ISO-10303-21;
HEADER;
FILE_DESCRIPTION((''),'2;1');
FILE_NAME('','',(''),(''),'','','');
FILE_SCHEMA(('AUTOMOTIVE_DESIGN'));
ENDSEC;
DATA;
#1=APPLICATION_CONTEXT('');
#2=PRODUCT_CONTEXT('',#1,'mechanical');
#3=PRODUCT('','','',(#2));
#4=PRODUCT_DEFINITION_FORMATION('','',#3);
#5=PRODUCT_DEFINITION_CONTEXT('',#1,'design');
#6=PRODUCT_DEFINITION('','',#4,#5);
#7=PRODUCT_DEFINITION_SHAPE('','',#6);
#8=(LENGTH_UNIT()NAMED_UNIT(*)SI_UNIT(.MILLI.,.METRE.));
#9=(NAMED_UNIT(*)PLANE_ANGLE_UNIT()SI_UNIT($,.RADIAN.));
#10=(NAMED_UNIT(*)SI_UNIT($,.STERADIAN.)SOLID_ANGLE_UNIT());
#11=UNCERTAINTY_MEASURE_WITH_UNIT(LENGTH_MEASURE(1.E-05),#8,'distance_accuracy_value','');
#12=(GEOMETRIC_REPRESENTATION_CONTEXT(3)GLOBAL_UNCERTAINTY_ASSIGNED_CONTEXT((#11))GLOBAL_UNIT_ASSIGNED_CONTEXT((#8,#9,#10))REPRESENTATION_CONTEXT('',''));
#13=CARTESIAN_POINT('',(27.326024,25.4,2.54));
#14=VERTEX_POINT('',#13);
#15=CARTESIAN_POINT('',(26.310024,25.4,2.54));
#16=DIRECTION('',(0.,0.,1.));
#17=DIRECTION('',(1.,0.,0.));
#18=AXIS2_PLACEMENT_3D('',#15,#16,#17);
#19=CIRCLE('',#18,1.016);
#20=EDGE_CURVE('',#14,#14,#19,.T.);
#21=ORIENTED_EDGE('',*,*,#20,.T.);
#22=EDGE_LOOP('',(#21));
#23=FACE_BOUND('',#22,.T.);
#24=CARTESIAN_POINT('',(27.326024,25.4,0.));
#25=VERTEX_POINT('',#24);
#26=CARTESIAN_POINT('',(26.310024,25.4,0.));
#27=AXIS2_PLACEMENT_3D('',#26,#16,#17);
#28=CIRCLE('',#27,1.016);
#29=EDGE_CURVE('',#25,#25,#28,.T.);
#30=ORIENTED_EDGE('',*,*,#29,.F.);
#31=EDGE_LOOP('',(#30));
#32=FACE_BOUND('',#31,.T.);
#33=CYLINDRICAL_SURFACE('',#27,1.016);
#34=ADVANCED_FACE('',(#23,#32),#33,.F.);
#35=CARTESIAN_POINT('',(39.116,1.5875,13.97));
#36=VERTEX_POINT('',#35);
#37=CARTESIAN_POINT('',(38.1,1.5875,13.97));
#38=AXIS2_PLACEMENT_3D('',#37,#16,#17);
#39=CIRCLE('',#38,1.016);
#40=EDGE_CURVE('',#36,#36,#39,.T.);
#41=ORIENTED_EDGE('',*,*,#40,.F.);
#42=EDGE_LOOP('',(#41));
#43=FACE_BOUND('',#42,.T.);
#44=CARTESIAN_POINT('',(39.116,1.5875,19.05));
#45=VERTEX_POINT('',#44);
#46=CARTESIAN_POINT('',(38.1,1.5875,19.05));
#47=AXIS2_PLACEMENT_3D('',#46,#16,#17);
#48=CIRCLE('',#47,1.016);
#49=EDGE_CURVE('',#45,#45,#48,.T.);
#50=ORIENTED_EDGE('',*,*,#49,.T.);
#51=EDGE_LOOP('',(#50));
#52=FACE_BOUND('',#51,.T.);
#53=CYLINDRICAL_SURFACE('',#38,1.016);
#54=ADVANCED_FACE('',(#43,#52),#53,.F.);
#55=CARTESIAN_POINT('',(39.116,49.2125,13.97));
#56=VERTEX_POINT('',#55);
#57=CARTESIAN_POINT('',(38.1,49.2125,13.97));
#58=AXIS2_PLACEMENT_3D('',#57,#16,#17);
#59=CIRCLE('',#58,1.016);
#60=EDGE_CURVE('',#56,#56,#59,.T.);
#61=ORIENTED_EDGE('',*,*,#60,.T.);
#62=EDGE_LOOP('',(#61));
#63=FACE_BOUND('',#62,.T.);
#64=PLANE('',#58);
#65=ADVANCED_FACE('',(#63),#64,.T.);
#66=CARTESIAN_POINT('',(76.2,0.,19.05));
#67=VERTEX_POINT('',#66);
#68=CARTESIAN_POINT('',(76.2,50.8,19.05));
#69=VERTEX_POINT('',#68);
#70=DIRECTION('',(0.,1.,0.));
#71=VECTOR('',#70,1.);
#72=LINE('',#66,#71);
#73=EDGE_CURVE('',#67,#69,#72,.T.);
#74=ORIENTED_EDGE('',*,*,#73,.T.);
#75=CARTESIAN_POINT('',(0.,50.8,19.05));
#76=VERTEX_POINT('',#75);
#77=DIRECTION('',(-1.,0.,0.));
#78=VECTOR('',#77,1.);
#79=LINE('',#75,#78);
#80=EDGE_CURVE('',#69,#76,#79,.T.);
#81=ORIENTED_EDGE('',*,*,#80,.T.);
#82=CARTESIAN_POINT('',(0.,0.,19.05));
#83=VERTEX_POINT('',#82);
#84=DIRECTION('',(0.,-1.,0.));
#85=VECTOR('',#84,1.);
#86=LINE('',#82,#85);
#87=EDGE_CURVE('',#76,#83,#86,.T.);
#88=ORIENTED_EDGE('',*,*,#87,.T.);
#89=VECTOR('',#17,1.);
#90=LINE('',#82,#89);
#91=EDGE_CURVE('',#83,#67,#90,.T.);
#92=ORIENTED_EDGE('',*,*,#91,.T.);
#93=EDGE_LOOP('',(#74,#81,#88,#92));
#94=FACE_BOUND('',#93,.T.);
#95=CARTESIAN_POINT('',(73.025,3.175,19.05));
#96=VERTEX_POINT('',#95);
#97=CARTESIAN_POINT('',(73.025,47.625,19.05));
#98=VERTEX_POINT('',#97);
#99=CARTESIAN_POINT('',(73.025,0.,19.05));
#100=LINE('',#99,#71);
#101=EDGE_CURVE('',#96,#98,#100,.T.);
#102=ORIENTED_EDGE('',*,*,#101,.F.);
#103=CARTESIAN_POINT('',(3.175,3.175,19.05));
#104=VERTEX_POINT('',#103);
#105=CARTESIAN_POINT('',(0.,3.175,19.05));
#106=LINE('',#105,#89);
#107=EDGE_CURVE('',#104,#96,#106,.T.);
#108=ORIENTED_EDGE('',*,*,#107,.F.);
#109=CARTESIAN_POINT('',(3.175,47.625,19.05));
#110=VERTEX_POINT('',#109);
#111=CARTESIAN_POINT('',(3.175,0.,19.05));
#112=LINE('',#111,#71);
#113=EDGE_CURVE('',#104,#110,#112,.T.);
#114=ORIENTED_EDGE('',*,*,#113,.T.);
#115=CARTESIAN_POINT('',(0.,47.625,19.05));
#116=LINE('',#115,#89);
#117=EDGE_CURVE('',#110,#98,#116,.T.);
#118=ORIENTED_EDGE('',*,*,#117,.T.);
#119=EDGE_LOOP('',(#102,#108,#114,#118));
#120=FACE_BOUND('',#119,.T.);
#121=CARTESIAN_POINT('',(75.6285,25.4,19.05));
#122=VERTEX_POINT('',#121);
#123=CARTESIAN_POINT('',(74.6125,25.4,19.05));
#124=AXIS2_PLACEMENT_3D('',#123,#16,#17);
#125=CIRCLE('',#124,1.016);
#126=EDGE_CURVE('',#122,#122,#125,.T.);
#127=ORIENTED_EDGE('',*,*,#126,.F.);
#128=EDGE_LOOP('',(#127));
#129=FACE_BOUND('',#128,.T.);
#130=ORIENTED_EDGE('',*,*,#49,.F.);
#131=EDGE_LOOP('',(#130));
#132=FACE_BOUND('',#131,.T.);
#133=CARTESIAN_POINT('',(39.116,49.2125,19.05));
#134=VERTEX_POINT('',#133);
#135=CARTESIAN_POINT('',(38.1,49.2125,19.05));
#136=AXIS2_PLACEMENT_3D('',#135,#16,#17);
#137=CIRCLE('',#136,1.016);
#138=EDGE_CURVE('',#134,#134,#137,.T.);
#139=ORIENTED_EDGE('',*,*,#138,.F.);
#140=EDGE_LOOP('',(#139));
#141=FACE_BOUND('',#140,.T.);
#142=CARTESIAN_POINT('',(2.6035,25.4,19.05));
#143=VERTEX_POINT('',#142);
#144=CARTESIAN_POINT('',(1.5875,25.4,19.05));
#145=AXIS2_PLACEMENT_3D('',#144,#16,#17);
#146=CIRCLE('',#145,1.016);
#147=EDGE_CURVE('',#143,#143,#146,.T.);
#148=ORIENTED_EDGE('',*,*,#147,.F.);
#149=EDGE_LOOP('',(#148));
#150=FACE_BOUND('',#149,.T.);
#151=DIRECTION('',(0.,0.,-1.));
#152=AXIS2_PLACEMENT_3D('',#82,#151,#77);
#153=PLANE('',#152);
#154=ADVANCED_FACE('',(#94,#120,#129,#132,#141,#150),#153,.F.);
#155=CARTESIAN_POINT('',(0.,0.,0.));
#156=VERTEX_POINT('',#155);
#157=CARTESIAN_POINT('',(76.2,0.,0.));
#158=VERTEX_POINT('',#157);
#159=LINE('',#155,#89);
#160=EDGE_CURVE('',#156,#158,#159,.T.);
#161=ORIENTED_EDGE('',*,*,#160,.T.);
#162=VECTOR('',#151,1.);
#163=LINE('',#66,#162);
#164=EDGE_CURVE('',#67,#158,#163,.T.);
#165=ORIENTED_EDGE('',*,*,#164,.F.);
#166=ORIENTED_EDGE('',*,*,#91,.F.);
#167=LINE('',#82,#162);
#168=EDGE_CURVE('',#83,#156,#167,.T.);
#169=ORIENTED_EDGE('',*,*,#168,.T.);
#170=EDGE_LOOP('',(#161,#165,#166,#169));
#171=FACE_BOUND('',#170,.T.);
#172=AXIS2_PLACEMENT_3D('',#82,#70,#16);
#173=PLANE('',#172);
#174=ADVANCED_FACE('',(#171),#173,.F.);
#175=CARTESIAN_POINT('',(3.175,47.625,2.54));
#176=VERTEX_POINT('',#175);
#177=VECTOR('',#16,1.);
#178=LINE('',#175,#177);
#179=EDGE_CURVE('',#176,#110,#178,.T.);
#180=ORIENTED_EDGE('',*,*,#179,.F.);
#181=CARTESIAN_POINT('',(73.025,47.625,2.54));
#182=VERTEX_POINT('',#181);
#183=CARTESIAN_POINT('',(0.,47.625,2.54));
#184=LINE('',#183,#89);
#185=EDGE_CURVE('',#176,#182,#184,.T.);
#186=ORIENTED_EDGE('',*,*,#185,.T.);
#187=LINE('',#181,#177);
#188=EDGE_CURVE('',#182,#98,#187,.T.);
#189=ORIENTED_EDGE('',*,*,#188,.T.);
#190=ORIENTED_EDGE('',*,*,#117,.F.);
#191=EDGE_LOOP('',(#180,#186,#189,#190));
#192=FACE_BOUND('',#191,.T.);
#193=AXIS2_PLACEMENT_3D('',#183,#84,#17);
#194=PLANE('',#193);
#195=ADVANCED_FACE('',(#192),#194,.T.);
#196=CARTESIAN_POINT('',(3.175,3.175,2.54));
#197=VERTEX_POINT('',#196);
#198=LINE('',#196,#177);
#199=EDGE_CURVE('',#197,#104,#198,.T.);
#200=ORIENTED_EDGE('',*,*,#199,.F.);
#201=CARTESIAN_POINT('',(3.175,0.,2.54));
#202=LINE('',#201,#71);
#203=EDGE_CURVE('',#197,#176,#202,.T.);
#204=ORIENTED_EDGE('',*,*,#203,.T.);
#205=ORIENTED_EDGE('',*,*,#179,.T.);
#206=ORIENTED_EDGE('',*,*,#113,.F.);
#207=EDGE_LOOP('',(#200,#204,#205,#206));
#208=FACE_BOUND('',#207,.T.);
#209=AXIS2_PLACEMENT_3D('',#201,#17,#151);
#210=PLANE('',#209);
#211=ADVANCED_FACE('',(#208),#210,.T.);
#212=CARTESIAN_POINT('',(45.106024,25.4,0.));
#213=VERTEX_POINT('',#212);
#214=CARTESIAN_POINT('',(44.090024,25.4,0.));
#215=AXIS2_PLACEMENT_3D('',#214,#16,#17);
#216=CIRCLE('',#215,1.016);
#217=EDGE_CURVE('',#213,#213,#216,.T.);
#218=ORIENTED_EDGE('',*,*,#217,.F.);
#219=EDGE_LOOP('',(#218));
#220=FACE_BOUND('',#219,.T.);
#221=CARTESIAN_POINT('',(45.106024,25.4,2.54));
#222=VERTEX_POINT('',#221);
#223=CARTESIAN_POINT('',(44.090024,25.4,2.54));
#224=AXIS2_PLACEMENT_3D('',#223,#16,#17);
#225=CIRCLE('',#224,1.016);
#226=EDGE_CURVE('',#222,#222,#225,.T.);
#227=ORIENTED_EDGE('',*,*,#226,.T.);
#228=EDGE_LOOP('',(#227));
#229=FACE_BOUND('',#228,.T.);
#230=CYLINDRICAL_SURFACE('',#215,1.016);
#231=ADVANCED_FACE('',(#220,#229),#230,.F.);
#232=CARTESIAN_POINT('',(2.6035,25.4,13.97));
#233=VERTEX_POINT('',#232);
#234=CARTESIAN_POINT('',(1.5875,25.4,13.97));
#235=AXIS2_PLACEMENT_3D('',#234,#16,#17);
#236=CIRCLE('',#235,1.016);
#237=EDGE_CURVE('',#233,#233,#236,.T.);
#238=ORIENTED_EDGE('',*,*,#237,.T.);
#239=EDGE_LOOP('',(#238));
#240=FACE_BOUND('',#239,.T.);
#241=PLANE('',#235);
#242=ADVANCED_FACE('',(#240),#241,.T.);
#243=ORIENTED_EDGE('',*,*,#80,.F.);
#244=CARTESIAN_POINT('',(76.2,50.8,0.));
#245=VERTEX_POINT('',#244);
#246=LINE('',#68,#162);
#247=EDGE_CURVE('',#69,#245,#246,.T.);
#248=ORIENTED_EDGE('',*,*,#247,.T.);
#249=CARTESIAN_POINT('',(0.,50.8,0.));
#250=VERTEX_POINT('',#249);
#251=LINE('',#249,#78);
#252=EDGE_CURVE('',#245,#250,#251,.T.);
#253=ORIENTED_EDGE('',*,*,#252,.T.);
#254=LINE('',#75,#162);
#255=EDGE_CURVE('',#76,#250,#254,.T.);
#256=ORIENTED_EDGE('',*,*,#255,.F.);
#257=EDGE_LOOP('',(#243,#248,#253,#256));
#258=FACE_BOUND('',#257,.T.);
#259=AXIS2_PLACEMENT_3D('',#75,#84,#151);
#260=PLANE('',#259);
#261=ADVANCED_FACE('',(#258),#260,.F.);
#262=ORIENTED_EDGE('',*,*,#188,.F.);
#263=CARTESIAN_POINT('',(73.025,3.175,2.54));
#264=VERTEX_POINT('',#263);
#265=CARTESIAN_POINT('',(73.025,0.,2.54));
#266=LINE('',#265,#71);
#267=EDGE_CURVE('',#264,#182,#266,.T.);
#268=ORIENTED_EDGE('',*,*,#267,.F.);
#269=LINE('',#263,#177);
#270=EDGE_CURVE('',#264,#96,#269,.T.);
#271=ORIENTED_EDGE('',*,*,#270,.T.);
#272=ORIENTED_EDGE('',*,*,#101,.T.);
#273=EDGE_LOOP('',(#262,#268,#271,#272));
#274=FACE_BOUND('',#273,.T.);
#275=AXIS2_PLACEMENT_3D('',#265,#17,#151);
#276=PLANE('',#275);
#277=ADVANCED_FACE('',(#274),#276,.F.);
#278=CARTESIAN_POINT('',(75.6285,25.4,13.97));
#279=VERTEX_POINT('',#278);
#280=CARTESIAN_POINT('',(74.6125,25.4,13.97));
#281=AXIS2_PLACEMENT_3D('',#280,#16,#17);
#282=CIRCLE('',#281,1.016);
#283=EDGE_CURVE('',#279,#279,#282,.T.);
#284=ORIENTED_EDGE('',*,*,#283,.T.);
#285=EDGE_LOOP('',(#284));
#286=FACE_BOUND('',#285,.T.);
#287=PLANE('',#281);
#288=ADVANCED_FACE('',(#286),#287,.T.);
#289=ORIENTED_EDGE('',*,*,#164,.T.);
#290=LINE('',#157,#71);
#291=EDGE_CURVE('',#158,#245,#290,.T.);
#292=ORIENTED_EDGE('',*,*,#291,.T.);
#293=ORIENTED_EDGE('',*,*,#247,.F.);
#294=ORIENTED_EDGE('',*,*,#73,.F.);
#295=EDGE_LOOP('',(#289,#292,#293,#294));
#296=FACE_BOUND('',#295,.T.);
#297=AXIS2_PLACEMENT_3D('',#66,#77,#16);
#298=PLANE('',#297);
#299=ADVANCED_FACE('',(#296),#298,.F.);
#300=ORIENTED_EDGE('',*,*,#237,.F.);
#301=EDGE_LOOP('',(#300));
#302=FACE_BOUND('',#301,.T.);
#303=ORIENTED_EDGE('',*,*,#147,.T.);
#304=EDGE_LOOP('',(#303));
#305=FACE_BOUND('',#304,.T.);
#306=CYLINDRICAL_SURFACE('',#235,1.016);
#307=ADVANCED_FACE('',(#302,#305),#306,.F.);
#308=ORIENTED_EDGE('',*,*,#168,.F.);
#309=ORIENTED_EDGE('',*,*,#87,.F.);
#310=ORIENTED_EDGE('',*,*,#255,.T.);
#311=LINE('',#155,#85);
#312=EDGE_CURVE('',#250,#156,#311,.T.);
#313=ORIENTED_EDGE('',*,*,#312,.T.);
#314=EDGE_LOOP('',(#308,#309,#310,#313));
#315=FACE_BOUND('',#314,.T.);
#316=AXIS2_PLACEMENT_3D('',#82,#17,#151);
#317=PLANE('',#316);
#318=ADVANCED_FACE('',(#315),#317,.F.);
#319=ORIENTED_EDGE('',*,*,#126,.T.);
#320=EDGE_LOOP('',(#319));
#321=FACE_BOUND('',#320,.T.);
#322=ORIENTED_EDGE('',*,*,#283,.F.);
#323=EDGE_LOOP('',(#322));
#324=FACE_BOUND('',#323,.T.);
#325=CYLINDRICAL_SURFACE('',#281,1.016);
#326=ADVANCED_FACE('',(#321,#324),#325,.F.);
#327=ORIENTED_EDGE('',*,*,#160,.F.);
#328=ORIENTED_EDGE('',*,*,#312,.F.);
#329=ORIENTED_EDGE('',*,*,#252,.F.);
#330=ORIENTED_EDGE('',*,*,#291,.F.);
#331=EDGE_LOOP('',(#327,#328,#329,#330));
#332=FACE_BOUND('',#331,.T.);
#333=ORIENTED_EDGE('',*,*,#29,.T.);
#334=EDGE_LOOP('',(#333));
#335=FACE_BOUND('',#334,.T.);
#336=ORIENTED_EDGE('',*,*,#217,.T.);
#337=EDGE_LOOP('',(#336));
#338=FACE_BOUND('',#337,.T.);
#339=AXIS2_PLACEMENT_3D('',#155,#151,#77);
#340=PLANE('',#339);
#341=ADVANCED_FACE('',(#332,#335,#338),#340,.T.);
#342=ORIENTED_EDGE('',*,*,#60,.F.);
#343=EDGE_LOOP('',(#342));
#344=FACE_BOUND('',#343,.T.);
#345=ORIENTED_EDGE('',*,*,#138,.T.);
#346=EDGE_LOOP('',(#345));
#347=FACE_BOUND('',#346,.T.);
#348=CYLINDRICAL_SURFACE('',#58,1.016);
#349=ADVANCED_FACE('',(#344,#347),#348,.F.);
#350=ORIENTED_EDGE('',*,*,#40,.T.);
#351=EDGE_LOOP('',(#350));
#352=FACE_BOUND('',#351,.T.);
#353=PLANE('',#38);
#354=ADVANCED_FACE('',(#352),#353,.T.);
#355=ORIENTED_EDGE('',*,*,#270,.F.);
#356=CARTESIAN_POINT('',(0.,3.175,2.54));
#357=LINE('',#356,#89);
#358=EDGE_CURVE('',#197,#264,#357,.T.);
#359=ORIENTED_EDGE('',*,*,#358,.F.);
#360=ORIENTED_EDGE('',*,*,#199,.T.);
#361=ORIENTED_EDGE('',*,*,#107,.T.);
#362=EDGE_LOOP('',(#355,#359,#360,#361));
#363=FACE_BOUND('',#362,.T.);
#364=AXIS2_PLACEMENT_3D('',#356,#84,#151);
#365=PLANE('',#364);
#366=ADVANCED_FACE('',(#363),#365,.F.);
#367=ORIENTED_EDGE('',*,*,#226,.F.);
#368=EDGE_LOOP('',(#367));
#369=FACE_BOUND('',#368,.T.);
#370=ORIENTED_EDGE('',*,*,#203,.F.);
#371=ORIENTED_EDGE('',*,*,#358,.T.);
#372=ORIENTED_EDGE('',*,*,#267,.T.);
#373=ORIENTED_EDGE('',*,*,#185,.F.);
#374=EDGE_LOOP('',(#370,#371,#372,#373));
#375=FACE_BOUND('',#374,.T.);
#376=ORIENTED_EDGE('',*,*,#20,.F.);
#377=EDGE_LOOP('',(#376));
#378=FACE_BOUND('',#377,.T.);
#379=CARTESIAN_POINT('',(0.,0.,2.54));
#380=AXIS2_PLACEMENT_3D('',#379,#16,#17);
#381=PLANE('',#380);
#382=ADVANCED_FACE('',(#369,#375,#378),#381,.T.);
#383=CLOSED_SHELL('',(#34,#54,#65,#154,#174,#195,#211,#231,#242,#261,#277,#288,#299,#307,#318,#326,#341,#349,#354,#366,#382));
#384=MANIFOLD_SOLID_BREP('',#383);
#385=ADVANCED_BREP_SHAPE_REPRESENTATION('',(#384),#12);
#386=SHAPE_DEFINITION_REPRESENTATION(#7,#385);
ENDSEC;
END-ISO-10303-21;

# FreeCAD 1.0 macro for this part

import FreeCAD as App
import Part
import Sketcher

V = App.Vector
Q = App.Units.Quantity


def add_polygon(sketch, points):
    """Adds a closed chain of lines whose ends are joined by coincident constraints."""
    first, n = sketch.GeometryCount, len(points)
    for a, b in zip(points, points[1:] + points[:1]):
        sketch.addGeometry(Part.LineSegment(App.Vector(*a, 0), App.Vector(*b, 0)), False)
    for i in range(n):
        sketch.addConstraint(Sketcher.Constraint("Coincident", first + i, 2, first + (i + 1) % n, 1))

doc = App.newDocument("Part")
body = doc.addObject("PartDesign::Body", "Body")

# Sketch on XY plane
sketch1 = body.newObject("Sketcher::SketchObject", "Sketch")
sketch1.AttachmentSupport = (doc.getObject("XY_Plane"), [""])
sketch1.MapMode = "FlatFace"
add_polygon(sketch1, [(0, 50.8), (0, 0), (76.2, 0), (76.2, 50.8)])  # lines 0-3
sketch1.addConstraint(Sketcher.Constraint("Vertical", 0))
sketch1.addConstraint(Sketcher.Constraint("Horizontal", 1))
sketch1.addConstraint(Sketcher.Constraint("Vertical", 2))
sketch1.addConstraint(Sketcher.Constraint("Horizontal", 3))
sketch1.addConstraint(Sketcher.Constraint("Coincident", 0, 2, -1, 1))
sketch1.addConstraint(Sketcher.Constraint("DistanceX", 1, 1, 1, 2, Q("3 in")))
sketch1.addConstraint(Sketcher.Constraint("DistanceY", 0, 2, 0, 1, Q("2 in")))
pad1 = body.newObject("PartDesign::Pad", "Pad")
pad1.Profile = sketch1
pad1.Length = Q("0.75 in")

# Sketch on XY plane
sketch2 = body.newObject("Sketcher::SketchObject", "Sketch001")
sketch2.AttachmentSupport = (doc.getObject("XY_Plane"), [""])
sketch2.MapMode = "FlatFace"
sketch2.AttachmentOffset = App.Placement(V(0, 0, 0.75 * 25.4), App.Rotation())
add_polygon(sketch2, [(73.025, 3.175), (73.025, 47.625), (3.175, 47.625), (3.175, 3.175)])  # lines 0-3
sketch2.addConstraint(Sketcher.Constraint("Vertical", 0))
sketch2.addConstraint(Sketcher.Constraint("Horizontal", 1))
sketch2.addConstraint(Sketcher.Constraint("Vertical", 2))
sketch2.addConstraint(Sketcher.Constraint("Horizontal", 3))
sketch2.addConstraint(Sketcher.Constraint("DistanceX", 1, 2, 1, 1, Q("2.75 in")))
sketch2.addConstraint(Sketcher.Constraint("DistanceY", 0, 1, 0, 2, Q("1.75 in")))
sketch2.addConstraint(Sketcher.Constraint("DistanceX", -1, 1, 0, 2, Q("2.875 in")))
sketch2.addConstraint(Sketcher.Constraint("DistanceY", -1, 1, 0, 2, Q("1.875 in")))
pocket1 = body.newObject("PartDesign::Pocket", "Pocket")
pocket1.Profile = sketch2
pocket1.Length = Q("0.65 in")

# Sketch on XY plane
sketch3 = body.newObject("Sketcher::SketchObject", "Sketch002")
sketch3.AttachmentSupport = (doc.getObject("XY_Plane"), [""])
sketch3.MapMode = "FlatFace"
sketch3.AttachmentOffset = App.Placement(V(0, 0, 0.75 * 25.4), App.Rotation())
sketch3.addGeometry(Part.Circle(V(1.5875, 25.4, 0), V(0, 0, 1), 1.016), False)
sketch3.addGeometry(Part.Circle(V(38.1, 49.2125, 0), V(0, 0, 1), 1.016), False)
sketch3.addGeometry(Part.Circle(V(74.6125, 25.4, 0), V(0, 0, 1), 1.016), False)
sketch3.addGeometry(Part.Circle(V(38.1, 1.5875, 0), V(0, 0, 1), 1.016), False)
sketch3.addConstraint(Sketcher.Constraint("Equal", 0, 1))
sketch3.addConstraint(Sketcher.Constraint("Equal", 1, 2))
sketch3.addConstraint(Sketcher.Constraint("Equal", 2, 3))
sketch3.addConstraint(Sketcher.Constraint("Horizontal", 0, 3, 2, 3))
sketch3.addConstraint(Sketcher.Constraint("Vertical", 1, 3, 3, 3))
sketch3.addConstraint(Sketcher.Constraint("Diameter", 0, Q("0.08 in")))
sketch3.addConstraint(Sketcher.Constraint("DistanceY", -1, 1, 0, 3, Q("1 in")))
sketch3.addConstraint(Sketcher.Constraint("DistanceX", -1, 1, 1, 3, Q("1.5 in")))
sketch3.addConstraint(Sketcher.Constraint("DistanceX", -1, 1, 0, 3, Q("0.0625 in")))
sketch3.addConstraint(Sketcher.Constraint("DistanceY", -1, 1, 1, 3, Q("1.9375 in")))
sketch3.addConstraint(Sketcher.Constraint("DistanceX", -1, 1, 2, 3, Q("2.9375 in")))
sketch3.addConstraint(Sketcher.Constraint("DistanceY", -1, 1, 3, 3, Q("0.0625 in")))
pocket2 = body.newObject("PartDesign::Pocket", "Pocket001")
pocket2.Profile = sketch3
pocket2.Length = Q("0.2 in")

# Sketch on XY plane
sketch4 = body.newObject("Sketcher::SketchObject", "Sketch003")
sketch4.AttachmentSupport = (doc.getObject("XY_Plane"), [""])
sketch4.MapMode = "FlatFace"
sketch4.AttachmentOffset = App.Placement(V(0, 0, 0.1 * 25.4), App.Rotation())
sketch4.addGeometry(Part.Circle(V(26.310024, 25.4, 0), V(0, 0, 1), 1.016), False)
sketch4.addGeometry(Part.Circle(V(44.090024, 25.4, 0), V(0, 0, 1), 1.016), False)
sketch4.addConstraint(Sketcher.Constraint("Equal", 0, 1))
sketch4.addConstraint(Sketcher.Constraint("Horizontal", 0, 3, 1, 3))
sketch4.addConstraint(Sketcher.Constraint("Diameter", 0, Q("0.08 in")))
sketch4.addConstraint(Sketcher.Constraint("DistanceY", -1, 1, 0, 3, Q("1 in")))
sketch4.addConstraint(Sketcher.Constraint("DistanceX", 0, 3, 1, 3, Q("0.7 in")))
sketch4.addConstraint(Sketcher.Constraint("DistanceX", -1, 1, 0, 3, 26.310024))
pocket3 = body.newObject("PartDesign::Pocket", "Pocket002")
pocket3.Profile = sketch4
pocket3.Type = "ThroughAll"

doc.recompute()
